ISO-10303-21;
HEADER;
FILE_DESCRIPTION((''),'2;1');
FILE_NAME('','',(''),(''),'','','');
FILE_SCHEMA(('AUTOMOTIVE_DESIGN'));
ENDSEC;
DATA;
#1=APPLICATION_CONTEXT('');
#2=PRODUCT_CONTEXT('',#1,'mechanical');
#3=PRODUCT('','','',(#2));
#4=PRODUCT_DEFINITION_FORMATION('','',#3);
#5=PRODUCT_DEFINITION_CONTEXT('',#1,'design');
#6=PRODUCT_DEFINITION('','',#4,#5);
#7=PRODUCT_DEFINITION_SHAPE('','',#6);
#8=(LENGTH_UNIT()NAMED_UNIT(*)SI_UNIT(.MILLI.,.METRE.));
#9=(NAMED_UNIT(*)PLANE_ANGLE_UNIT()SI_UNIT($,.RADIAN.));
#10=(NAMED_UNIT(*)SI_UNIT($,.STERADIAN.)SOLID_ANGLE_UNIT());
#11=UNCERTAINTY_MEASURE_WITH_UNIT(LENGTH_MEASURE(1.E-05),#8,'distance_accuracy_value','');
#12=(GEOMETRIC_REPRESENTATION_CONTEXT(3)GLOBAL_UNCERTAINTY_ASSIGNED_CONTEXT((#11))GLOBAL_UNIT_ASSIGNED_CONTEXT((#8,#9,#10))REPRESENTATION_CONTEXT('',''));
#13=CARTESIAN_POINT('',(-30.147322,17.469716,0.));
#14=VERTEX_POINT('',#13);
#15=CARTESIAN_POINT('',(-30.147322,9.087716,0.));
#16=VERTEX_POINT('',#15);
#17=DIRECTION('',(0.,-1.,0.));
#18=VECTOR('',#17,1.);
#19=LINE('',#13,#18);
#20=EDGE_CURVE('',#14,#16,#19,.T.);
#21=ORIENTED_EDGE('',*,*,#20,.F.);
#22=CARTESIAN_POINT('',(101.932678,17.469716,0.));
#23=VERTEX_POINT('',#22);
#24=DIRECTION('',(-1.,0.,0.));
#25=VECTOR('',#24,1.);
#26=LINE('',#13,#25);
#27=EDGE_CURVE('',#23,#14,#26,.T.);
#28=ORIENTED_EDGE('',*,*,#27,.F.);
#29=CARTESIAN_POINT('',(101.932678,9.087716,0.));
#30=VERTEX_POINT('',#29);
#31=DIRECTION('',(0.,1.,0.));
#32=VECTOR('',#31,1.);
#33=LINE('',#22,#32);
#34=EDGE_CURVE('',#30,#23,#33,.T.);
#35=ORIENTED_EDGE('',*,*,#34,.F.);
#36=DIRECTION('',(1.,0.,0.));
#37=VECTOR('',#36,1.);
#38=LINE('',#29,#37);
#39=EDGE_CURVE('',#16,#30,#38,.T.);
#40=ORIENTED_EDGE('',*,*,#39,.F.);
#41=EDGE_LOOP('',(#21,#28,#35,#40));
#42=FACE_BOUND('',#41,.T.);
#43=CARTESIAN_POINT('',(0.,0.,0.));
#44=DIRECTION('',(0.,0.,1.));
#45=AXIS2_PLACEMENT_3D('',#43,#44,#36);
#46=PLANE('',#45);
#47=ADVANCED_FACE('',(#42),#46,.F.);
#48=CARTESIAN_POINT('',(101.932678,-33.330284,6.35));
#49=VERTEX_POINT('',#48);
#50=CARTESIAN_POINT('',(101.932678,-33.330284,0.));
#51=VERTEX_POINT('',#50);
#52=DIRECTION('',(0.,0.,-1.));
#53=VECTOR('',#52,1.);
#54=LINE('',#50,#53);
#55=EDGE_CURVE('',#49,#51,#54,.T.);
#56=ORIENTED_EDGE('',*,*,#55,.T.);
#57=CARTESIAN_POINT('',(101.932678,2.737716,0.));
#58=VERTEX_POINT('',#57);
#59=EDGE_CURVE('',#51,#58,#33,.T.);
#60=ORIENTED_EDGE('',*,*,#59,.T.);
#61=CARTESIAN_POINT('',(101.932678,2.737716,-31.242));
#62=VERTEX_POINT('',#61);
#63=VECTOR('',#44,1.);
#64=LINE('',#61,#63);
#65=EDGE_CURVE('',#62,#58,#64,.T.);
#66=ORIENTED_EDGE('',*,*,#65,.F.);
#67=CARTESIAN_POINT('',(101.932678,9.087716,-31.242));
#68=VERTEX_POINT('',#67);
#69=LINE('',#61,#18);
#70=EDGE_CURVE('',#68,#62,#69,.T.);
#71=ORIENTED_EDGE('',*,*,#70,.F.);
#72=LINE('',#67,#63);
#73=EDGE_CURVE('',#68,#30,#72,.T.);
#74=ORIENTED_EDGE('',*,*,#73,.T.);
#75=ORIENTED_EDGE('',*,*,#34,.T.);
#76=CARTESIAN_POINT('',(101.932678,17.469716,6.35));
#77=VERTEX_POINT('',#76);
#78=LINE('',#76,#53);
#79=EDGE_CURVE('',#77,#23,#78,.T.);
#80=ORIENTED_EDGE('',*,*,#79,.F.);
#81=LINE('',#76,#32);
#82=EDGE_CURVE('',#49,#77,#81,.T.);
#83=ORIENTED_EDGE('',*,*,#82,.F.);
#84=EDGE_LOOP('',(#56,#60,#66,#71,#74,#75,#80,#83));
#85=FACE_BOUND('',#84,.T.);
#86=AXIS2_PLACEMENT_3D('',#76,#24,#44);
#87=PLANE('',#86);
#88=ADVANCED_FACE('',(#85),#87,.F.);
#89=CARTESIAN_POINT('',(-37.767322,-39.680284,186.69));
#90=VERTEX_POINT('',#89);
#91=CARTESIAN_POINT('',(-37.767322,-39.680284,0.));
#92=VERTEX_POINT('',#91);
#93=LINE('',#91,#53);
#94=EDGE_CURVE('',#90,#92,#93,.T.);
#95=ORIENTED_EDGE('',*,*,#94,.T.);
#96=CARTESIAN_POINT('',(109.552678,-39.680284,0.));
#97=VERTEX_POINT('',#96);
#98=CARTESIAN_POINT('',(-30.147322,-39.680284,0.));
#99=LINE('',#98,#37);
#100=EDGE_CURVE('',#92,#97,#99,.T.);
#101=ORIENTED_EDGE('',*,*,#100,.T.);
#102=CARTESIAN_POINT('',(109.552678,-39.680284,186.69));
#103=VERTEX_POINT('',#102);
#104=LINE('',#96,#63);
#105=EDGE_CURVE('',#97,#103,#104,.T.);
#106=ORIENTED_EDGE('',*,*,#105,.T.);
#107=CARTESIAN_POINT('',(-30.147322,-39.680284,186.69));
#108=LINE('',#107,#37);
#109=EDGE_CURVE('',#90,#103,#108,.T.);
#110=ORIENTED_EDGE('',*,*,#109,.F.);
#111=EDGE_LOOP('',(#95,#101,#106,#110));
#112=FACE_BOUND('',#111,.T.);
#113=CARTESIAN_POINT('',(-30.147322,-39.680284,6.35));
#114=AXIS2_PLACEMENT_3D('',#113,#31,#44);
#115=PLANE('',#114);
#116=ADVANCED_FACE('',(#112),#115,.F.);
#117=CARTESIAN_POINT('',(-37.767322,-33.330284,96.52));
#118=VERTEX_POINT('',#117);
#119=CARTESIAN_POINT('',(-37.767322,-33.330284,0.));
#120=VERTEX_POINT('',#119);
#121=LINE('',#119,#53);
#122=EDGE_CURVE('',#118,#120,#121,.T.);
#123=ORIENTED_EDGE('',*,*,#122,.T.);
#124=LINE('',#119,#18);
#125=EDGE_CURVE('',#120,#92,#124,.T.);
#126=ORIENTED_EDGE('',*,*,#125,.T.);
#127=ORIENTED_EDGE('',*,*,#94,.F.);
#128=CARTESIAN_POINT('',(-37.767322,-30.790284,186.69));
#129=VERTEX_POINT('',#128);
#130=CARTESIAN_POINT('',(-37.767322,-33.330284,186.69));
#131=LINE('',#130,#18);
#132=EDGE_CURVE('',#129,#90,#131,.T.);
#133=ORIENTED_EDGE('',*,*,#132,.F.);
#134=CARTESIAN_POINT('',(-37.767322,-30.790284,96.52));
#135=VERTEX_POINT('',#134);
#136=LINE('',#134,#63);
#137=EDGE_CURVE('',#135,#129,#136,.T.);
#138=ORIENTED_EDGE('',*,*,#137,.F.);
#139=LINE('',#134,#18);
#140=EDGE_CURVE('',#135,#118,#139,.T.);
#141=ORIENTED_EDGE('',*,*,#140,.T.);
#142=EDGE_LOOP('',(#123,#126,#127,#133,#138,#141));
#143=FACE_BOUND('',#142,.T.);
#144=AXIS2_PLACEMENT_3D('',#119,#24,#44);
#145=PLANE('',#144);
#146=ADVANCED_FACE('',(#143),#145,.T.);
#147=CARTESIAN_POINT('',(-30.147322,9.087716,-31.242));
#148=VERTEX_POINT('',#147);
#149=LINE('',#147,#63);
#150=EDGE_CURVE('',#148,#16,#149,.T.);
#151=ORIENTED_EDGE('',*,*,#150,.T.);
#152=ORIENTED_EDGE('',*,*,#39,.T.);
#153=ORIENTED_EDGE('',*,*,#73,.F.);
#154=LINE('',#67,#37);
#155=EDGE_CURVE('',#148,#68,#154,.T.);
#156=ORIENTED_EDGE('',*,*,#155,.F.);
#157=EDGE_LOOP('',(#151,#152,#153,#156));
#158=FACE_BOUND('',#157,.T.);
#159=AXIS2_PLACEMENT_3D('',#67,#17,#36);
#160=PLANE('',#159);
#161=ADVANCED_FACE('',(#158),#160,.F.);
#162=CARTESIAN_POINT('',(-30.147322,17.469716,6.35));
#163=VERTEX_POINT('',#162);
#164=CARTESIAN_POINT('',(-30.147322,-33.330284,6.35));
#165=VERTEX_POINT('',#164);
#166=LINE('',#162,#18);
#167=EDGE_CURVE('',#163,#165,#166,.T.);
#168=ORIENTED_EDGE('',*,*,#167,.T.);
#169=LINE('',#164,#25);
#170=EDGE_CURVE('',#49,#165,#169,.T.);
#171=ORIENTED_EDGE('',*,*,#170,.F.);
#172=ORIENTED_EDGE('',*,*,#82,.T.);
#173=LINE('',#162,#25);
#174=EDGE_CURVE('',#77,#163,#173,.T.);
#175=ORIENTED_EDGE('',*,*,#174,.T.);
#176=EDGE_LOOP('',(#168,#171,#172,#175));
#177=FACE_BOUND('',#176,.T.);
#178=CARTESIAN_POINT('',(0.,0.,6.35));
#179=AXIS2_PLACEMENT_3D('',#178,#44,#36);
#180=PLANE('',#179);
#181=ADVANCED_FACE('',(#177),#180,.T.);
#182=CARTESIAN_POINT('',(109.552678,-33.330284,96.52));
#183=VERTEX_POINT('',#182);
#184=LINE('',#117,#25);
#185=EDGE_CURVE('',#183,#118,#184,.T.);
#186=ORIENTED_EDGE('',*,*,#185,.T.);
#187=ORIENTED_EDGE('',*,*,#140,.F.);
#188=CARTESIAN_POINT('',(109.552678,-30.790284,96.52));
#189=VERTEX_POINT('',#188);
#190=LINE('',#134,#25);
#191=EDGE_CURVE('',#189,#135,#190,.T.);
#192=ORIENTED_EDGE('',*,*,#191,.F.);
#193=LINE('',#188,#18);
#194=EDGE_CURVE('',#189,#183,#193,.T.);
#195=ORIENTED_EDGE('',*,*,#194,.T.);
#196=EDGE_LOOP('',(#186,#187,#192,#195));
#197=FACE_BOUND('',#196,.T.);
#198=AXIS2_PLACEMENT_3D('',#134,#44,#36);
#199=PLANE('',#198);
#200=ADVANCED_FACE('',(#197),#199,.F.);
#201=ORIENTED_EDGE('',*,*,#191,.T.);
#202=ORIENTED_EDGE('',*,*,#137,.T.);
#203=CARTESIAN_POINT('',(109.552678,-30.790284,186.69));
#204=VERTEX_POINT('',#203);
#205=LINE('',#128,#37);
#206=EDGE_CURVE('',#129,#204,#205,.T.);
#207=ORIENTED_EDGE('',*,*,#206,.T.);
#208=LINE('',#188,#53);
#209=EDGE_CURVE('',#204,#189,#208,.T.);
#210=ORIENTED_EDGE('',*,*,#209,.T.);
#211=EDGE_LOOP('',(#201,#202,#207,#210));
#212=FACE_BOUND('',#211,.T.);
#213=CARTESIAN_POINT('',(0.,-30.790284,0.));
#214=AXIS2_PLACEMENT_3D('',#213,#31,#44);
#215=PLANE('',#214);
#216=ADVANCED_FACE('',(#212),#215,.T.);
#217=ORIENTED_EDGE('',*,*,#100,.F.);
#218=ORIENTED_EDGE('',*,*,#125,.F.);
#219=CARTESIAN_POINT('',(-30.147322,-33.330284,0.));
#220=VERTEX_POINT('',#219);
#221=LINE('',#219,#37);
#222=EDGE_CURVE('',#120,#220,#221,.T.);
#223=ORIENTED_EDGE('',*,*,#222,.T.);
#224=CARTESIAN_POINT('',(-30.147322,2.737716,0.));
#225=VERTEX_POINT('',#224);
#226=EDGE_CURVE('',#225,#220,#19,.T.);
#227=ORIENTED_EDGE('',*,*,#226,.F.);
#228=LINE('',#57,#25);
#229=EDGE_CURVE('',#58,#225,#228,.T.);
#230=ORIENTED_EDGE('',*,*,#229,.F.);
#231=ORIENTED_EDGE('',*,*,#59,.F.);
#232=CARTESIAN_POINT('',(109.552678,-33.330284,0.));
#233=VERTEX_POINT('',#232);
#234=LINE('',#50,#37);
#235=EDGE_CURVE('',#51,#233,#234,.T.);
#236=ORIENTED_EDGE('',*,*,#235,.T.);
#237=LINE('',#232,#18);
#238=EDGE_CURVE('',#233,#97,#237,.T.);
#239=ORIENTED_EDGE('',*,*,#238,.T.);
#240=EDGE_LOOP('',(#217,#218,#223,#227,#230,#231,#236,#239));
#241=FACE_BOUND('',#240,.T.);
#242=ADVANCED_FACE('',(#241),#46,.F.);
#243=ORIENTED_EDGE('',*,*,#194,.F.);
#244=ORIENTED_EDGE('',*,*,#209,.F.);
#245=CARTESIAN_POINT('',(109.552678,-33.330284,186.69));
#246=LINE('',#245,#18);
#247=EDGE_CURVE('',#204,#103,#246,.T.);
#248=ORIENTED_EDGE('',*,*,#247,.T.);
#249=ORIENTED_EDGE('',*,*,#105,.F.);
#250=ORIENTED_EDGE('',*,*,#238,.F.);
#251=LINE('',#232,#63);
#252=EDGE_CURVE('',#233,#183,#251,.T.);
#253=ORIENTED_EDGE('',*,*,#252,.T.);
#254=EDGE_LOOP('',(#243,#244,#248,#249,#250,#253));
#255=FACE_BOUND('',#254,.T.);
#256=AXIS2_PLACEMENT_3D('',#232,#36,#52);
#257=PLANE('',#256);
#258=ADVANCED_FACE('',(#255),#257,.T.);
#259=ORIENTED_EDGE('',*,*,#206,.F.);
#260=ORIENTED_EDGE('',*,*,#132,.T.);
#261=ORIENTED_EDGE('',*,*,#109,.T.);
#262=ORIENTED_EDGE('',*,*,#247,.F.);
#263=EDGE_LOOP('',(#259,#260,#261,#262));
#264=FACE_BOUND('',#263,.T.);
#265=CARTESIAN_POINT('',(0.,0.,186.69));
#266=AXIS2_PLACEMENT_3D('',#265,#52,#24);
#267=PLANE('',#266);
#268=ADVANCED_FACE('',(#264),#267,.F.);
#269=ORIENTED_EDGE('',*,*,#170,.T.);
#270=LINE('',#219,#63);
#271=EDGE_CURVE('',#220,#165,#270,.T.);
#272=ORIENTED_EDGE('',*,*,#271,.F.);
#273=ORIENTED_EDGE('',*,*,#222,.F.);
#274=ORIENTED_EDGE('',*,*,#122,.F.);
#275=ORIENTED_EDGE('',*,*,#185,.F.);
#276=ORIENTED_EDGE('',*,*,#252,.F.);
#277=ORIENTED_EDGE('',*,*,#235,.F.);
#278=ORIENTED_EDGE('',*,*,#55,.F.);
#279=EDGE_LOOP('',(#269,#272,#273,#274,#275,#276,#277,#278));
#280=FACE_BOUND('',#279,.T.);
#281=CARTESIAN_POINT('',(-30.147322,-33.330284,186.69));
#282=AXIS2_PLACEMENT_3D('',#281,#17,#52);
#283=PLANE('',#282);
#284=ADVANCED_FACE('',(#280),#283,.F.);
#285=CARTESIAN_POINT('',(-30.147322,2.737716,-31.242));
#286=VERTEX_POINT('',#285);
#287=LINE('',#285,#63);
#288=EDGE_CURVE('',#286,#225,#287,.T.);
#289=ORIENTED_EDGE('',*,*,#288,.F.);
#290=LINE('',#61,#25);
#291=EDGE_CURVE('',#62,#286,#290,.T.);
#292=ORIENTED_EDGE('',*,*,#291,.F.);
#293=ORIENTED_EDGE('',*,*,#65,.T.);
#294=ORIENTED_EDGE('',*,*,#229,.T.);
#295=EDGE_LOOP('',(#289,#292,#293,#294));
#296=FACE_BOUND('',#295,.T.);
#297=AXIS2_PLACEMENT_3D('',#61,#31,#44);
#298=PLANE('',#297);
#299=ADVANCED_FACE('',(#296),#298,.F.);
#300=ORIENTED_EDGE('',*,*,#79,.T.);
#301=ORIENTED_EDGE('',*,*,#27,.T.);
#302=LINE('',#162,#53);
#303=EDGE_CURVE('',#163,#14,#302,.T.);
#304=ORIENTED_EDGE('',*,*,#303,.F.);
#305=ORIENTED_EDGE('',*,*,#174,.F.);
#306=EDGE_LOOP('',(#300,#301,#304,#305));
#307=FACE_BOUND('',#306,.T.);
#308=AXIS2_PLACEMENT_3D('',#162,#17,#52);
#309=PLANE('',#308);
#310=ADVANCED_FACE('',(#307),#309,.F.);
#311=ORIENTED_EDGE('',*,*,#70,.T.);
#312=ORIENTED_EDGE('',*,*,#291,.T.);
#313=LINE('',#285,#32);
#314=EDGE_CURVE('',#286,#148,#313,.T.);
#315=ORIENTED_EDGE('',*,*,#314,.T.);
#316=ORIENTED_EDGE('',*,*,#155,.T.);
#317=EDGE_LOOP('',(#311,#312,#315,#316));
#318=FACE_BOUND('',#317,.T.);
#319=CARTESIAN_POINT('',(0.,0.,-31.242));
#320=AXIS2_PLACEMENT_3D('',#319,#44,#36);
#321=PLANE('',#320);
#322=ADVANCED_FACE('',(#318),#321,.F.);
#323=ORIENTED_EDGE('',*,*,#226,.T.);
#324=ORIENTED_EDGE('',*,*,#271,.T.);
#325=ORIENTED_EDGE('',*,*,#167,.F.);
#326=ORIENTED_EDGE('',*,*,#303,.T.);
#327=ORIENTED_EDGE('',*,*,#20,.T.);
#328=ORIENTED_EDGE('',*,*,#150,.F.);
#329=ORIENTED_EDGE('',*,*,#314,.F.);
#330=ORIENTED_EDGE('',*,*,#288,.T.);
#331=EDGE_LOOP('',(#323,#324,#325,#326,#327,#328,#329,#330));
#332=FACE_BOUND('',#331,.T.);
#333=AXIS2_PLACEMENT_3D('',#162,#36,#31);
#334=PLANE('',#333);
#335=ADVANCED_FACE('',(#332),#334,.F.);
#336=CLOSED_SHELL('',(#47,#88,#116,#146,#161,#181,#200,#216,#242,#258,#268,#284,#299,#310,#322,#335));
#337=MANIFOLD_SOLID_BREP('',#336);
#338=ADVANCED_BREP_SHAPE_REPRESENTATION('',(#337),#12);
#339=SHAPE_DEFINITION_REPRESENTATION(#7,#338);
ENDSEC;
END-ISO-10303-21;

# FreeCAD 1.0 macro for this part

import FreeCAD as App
import Part
import Sketcher
Q = App.Units.Quantity

doc = App.newDocument("Part")
params = doc.addObject("Spreadsheet::Sheet", "Params")
for row, (alias, value) in enumerate([
    ("sketch1_width", "5.2 in"),
    ("sketch1_height", "2.25 in"),
    ("pad1_length", "0.25 in"),
    ("sketch2_width", "5.2 in"),
    ("sketch2_height", "0.25 in"),
    ("pad2_length", "1.23 in"),
    ("sketch3_width", "5.2 in"),
    ("sketch3_height", "0.25 in"),
    ("pad3_length", "7.1 in"),
    ("sketch4_width", "0.3 in"),
    ("sketch4_height", "7.35 in"),
    ("pad4_length", "0.25 in"),
    ("sketch5_width", "5.8 in"),
    ("sketch5_height", "3.55 in"),
    ("pad5_length", "0.1 in"),
], start=1):
    params.set(f"A{row}", alias)
    params.set(f"B{row}", "=" + value)
    params.setAlias(f"B{row}", alias)

body = doc.addObject("PartDesign::Body", "Body")

# Sketch on XY plane
sketch1 = body.newObject("Sketcher::SketchObject", "Sketch")
sketch1.AttachmentSupport = (doc.getObject("XY_Plane"), [""])
sketch1.MapMode = "FlatFace"
sketch1.addGeometry([
    Part.LineSegment(App.Vector(-30.147322, 17.469716, 0), App.Vector(-30.147322, -39.680284, 0)),
    Part.LineSegment(App.Vector(-30.147322, -39.680284, 0), App.Vector(101.932678, -39.680284, 0)),
    Part.LineSegment(App.Vector(101.932678, -39.680284, 0), App.Vector(101.932678, 17.469716, 0)),
    Part.LineSegment(App.Vector(101.932678, 17.469716, 0), App.Vector(-30.147322, 17.469716, 0)),
], False)
sketch1.addConstraint([
    Sketcher.Constraint("Coincident", 0, 2, 1, 1),
    Sketcher.Constraint("Coincident", 1, 2, 2, 1),
    Sketcher.Constraint("Coincident", 2, 2, 3, 1),
    Sketcher.Constraint("Coincident", 3, 2, 0, 1),
    Sketcher.Constraint("Vertical", 0),
    Sketcher.Constraint("Horizontal", 1),
    Sketcher.Constraint("Vertical", 2),
    Sketcher.Constraint("Horizontal", 3),
    Sketcher.Constraint("DistanceX", 1, 1, 1, 2, Q("5.2 in")),
    Sketcher.Constraint("DistanceY", 0, 2, 0, 1, Q("2.25 in")),
    Sketcher.Constraint("DistanceX", 0, 2, -1, 1, Q("30.147322 mm")),
    Sketcher.Constraint("DistanceY", 0, 2, -1, 1, Q("39.680284 mm")),
])
sketch1.setExpression("Constraints[8]", "Params.sketch1_width")
sketch1.setExpression("Constraints[9]", "Params.sketch1_height")
pad1 = body.newObject("PartDesign::Pad", "Pad")
pad1.Profile = sketch1
pad1.setExpression("Length", "Params.pad1_length")

# Sketch on XY plane
sketch2 = body.newObject("Sketcher::SketchObject", "Sketch001")
sketch2.AttachmentSupport = (doc.getObject("XY_Plane"), [""])
sketch2.MapMode = "FlatFace"
sketch2.addGeometry([
    Part.LineSegment(App.Vector(101.932678, 9.087716, 0), App.Vector(101.932678, 2.737716, 0)),
    Part.LineSegment(App.Vector(101.932678, 2.737716, 0), App.Vector(-30.147322, 2.737716, 0)),
    Part.LineSegment(App.Vector(-30.147322, 2.737716, 0), App.Vector(-30.147322, 9.087716, 0)),
    Part.LineSegment(App.Vector(-30.147322, 9.087716, 0), App.Vector(101.932678, 9.087716, 0)),
], False)
sketch2.addConstraint([
    Sketcher.Constraint("Coincident", 0, 2, 1, 1),
    Sketcher.Constraint("Coincident", 1, 2, 2, 1),
    Sketcher.Constraint("Coincident", 2, 2, 3, 1),
    Sketcher.Constraint("Coincident", 3, 2, 0, 1),
    Sketcher.Constraint("Vertical", 0),
    Sketcher.Constraint("Horizontal", 1),
    Sketcher.Constraint("Vertical", 2),
    Sketcher.Constraint("Horizontal", 3),
    Sketcher.Constraint("DistanceX", 1, 2, 1, 1, Q("5.2 in")),
    Sketcher.Constraint("DistanceY", 0, 2, 0, 1, Q("0.25 in")),
    Sketcher.Constraint("DistanceX", -1, 1, 0, 2, Q("101.932678 mm")),
    Sketcher.Constraint("DistanceY", -1, 1, 0, 2, Q("2.737716 mm")),
])
sketch2.setExpression("Constraints[8]", "Params.sketch2_width")
sketch2.setExpression("Constraints[9]", "Params.sketch2_height")
pad2 = body.newObject("PartDesign::Pad", "Pad001")
pad2.Profile = sketch2
pad2.setExpression("Length", "Params.pad2_length")
pad2.Reversed = True

# Sketch on XY plane
sketch3 = body.newObject("Sketcher::SketchObject", "Sketch002")
sketch3.AttachmentSupport = (doc.getObject("XY_Plane"), [""])
sketch3.MapMode = "FlatFace"
sketch3.AttachmentOffset = App.Placement(App.Vector(0, 0, 0.25 * 25.4), App.Rotation())
sketch3.addGeometry([
    Part.LineSegment(App.Vector(-30.147322, -33.330284, 0), App.Vector(-30.147322, -39.680284, 0)),
    Part.LineSegment(App.Vector(-30.147322, -39.680284, 0), App.Vector(101.932678, -39.680284, 0)),
    Part.LineSegment(App.Vector(101.932678, -39.680284, 0), App.Vector(101.932678, -33.330284, 0)),
    Part.LineSegment(App.Vector(101.932678, -33.330284, 0), App.Vector(-30.147322, -33.330284, 0)),
], False)
sketch3.addConstraint([
    Sketcher.Constraint("Coincident", 0, 2, 1, 1),
    Sketcher.Constraint("Coincident", 1, 2, 2, 1),
    Sketcher.Constraint("Coincident", 2, 2, 3, 1),
    Sketcher.Constraint("Coincident", 3, 2, 0, 1),
    Sketcher.Constraint("Vertical", 0),
    Sketcher.Constraint("Horizontal", 1),
    Sketcher.Constraint("Vertical", 2),
    Sketcher.Constraint("Horizontal", 3),
    Sketcher.Constraint("DistanceX", 1, 1, 1, 2, Q("5.2 in")),
    Sketcher.Constraint("DistanceY", 0, 2, 0, 1, Q("0.25 in")),
    Sketcher.Constraint("DistanceX", 0, 2, -1, 1, Q("30.147322 mm")),
    Sketcher.Constraint("DistanceY", 0, 2, -1, 1, Q("39.680284 mm")),
])
sketch3.setExpression("Constraints[8]", "Params.sketch3_width")
sketch3.setExpression("Constraints[9]", "Params.sketch3_height")
pad3 = body.newObject("PartDesign::Pad", "Pad002")
pad3.Profile = sketch3
pad3.setExpression("Length", "Params.pad3_length")

# Sketch on XZ plane
sketch4 = body.newObject("Sketcher::SketchObject", "Sketch003")
sketch4.AttachmentSupport = (doc.getObject("XZ_Plane"), [""])
sketch4.MapMode = "FlatFace"
sketch4.AttachmentOffset = App.Placement(App.Vector(0, 0, 39.680284), App.Rotation())
sketch4.addGeometry([
    Part.LineSegment(App.Vector(-37.767322, 186.69, 0), App.Vector(-37.767322, 0, 0)),  # 0
    Part.LineSegment(App.Vector(-37.767322, 0, 0), App.Vector(-30.147322, 0, 0)),  # 1
    Part.LineSegment(App.Vector(-30.147322, 0, 0), App.Vector(-30.147322, 186.69, 0)),  # 2
    Part.LineSegment(App.Vector(-30.147322, 186.69, 0), App.Vector(-37.767322, 186.69, 0)),  # 3
    Part.LineSegment(App.Vector(101.932678, 186.69, 0), App.Vector(101.932678, 0, 0)),  # 4
    Part.LineSegment(App.Vector(101.932678, 0, 0), App.Vector(109.552678, 0, 0)),  # 5
    Part.LineSegment(App.Vector(109.552678, 0, 0), App.Vector(109.552678, 186.69, 0)),  # 6
    Part.LineSegment(App.Vector(109.552678, 186.69, 0), App.Vector(101.932678, 186.69, 0)),  # 7
], False)
sketch4.addConstraint([
    Sketcher.Constraint("Coincident", 0, 2, 1, 1),
    Sketcher.Constraint("Coincident", 1, 2, 2, 1),
    Sketcher.Constraint("Coincident", 2, 2, 3, 1),
    Sketcher.Constraint("Coincident", 3, 2, 0, 1),
    Sketcher.Constraint("Coincident", 4, 2, 5, 1),
    Sketcher.Constraint("Coincident", 5, 2, 6, 1),
    Sketcher.Constraint("Coincident", 6, 2, 7, 1),
    Sketcher.Constraint("Coincident", 7, 2, 4, 1),
    Sketcher.Constraint("Vertical", 0),
    Sketcher.Constraint("Horizontal", 1),
    Sketcher.Constraint("Vertical", 2),
    Sketcher.Constraint("Horizontal", 3),
    Sketcher.Constraint("Vertical", 4),
    Sketcher.Constraint("Horizontal", 5),
    Sketcher.Constraint("Vertical", 6),
    Sketcher.Constraint("Horizontal", 7),
    Sketcher.Constraint("PointOnObject", 0, 2, -1),
    Sketcher.Constraint("PointOnObject", 4, 2, -1),
    Sketcher.Constraint("Horizontal", 3, 2, 6, 2),
    Sketcher.Constraint("Equal", 3, 5),
    Sketcher.Constraint("DistanceX", 1, 1, 1, 2, Q("0.3 in")),
    Sketcher.Constraint("DistanceY", 0, 2, 0, 1, Q("7.35 in")),
    Sketcher.Constraint("DistanceX", 1, 2, 4, 2, Q("5.2 in")),
    Sketcher.Constraint("DistanceX", 0, 2, -1, 1, Q("37.767322 mm")),
])
sketch4.setExpression("Constraints[20]", "Params.sketch4_width")
sketch4.setExpression("Constraints[21]", "Params.sketch4_height")
pad4 = body.newObject("PartDesign::Pad", "Pad003")
pad4.Profile = sketch4
pad4.setExpression("Length", "Params.pad4_length")
pad4.Reversed = True

# Sketch on XZ plane
sketch5 = body.newObject("Sketcher::SketchObject", "Sketch004")
sketch5.AttachmentSupport = (doc.getObject("XZ_Plane"), [""])
sketch5.MapMode = "FlatFace"
sketch5.AttachmentOffset = App.Placement(App.Vector(0, 0, 33.330284), App.Rotation())
sketch5.addGeometry([
    Part.LineSegment(App.Vector(-37.767322, 96.52, 0), App.Vector(-37.767322, 186.69, 0)),
    Part.LineSegment(App.Vector(-37.767322, 186.69, 0), App.Vector(109.552678, 186.69, 0)),
    Part.LineSegment(App.Vector(109.552678, 186.69, 0), App.Vector(109.552678, 96.52, 0)),
    Part.LineSegment(App.Vector(109.552678, 96.52, 0), App.Vector(-37.767322, 96.52, 0)),
], False)
sketch5.addConstraint([
    Sketcher.Constraint("Coincident", 0, 2, 1, 1),
    Sketcher.Constraint("Coincident", 1, 2, 2, 1),
    Sketcher.Constraint("Coincident", 2, 2, 3, 1),
    Sketcher.Constraint("Coincident", 3, 2, 0, 1),
    Sketcher.Constraint("Vertical", 0),
    Sketcher.Constraint("Horizontal", 1),
    Sketcher.Constraint("Vertical", 2),
    Sketcher.Constraint("Horizontal", 3),
    Sketcher.Constraint("DistanceX", 1, 1, 1, 2, Q("5.8 in")),
    Sketcher.Constraint("DistanceY", 0, 1, 0, 2, Q("3.55 in")),
    Sketcher.Constraint("DistanceY", -1, 1, 2, 2, Q("3.8 in")),
    Sketcher.Constraint("DistanceX", 0, 2, -1, 1, Q("37.767322 mm")),
])
sketch5.setExpression("Constraints[8]", "Params.sketch5_width")
sketch5.setExpression("Constraints[9]", "Params.sketch5_height")
pad5 = body.newObject("PartDesign::Pad", "Pad004")
pad5.Profile = sketch5
pad5.setExpression("Length", "Params.pad5_length")
pad5.Reversed = True

doc.recompute()
